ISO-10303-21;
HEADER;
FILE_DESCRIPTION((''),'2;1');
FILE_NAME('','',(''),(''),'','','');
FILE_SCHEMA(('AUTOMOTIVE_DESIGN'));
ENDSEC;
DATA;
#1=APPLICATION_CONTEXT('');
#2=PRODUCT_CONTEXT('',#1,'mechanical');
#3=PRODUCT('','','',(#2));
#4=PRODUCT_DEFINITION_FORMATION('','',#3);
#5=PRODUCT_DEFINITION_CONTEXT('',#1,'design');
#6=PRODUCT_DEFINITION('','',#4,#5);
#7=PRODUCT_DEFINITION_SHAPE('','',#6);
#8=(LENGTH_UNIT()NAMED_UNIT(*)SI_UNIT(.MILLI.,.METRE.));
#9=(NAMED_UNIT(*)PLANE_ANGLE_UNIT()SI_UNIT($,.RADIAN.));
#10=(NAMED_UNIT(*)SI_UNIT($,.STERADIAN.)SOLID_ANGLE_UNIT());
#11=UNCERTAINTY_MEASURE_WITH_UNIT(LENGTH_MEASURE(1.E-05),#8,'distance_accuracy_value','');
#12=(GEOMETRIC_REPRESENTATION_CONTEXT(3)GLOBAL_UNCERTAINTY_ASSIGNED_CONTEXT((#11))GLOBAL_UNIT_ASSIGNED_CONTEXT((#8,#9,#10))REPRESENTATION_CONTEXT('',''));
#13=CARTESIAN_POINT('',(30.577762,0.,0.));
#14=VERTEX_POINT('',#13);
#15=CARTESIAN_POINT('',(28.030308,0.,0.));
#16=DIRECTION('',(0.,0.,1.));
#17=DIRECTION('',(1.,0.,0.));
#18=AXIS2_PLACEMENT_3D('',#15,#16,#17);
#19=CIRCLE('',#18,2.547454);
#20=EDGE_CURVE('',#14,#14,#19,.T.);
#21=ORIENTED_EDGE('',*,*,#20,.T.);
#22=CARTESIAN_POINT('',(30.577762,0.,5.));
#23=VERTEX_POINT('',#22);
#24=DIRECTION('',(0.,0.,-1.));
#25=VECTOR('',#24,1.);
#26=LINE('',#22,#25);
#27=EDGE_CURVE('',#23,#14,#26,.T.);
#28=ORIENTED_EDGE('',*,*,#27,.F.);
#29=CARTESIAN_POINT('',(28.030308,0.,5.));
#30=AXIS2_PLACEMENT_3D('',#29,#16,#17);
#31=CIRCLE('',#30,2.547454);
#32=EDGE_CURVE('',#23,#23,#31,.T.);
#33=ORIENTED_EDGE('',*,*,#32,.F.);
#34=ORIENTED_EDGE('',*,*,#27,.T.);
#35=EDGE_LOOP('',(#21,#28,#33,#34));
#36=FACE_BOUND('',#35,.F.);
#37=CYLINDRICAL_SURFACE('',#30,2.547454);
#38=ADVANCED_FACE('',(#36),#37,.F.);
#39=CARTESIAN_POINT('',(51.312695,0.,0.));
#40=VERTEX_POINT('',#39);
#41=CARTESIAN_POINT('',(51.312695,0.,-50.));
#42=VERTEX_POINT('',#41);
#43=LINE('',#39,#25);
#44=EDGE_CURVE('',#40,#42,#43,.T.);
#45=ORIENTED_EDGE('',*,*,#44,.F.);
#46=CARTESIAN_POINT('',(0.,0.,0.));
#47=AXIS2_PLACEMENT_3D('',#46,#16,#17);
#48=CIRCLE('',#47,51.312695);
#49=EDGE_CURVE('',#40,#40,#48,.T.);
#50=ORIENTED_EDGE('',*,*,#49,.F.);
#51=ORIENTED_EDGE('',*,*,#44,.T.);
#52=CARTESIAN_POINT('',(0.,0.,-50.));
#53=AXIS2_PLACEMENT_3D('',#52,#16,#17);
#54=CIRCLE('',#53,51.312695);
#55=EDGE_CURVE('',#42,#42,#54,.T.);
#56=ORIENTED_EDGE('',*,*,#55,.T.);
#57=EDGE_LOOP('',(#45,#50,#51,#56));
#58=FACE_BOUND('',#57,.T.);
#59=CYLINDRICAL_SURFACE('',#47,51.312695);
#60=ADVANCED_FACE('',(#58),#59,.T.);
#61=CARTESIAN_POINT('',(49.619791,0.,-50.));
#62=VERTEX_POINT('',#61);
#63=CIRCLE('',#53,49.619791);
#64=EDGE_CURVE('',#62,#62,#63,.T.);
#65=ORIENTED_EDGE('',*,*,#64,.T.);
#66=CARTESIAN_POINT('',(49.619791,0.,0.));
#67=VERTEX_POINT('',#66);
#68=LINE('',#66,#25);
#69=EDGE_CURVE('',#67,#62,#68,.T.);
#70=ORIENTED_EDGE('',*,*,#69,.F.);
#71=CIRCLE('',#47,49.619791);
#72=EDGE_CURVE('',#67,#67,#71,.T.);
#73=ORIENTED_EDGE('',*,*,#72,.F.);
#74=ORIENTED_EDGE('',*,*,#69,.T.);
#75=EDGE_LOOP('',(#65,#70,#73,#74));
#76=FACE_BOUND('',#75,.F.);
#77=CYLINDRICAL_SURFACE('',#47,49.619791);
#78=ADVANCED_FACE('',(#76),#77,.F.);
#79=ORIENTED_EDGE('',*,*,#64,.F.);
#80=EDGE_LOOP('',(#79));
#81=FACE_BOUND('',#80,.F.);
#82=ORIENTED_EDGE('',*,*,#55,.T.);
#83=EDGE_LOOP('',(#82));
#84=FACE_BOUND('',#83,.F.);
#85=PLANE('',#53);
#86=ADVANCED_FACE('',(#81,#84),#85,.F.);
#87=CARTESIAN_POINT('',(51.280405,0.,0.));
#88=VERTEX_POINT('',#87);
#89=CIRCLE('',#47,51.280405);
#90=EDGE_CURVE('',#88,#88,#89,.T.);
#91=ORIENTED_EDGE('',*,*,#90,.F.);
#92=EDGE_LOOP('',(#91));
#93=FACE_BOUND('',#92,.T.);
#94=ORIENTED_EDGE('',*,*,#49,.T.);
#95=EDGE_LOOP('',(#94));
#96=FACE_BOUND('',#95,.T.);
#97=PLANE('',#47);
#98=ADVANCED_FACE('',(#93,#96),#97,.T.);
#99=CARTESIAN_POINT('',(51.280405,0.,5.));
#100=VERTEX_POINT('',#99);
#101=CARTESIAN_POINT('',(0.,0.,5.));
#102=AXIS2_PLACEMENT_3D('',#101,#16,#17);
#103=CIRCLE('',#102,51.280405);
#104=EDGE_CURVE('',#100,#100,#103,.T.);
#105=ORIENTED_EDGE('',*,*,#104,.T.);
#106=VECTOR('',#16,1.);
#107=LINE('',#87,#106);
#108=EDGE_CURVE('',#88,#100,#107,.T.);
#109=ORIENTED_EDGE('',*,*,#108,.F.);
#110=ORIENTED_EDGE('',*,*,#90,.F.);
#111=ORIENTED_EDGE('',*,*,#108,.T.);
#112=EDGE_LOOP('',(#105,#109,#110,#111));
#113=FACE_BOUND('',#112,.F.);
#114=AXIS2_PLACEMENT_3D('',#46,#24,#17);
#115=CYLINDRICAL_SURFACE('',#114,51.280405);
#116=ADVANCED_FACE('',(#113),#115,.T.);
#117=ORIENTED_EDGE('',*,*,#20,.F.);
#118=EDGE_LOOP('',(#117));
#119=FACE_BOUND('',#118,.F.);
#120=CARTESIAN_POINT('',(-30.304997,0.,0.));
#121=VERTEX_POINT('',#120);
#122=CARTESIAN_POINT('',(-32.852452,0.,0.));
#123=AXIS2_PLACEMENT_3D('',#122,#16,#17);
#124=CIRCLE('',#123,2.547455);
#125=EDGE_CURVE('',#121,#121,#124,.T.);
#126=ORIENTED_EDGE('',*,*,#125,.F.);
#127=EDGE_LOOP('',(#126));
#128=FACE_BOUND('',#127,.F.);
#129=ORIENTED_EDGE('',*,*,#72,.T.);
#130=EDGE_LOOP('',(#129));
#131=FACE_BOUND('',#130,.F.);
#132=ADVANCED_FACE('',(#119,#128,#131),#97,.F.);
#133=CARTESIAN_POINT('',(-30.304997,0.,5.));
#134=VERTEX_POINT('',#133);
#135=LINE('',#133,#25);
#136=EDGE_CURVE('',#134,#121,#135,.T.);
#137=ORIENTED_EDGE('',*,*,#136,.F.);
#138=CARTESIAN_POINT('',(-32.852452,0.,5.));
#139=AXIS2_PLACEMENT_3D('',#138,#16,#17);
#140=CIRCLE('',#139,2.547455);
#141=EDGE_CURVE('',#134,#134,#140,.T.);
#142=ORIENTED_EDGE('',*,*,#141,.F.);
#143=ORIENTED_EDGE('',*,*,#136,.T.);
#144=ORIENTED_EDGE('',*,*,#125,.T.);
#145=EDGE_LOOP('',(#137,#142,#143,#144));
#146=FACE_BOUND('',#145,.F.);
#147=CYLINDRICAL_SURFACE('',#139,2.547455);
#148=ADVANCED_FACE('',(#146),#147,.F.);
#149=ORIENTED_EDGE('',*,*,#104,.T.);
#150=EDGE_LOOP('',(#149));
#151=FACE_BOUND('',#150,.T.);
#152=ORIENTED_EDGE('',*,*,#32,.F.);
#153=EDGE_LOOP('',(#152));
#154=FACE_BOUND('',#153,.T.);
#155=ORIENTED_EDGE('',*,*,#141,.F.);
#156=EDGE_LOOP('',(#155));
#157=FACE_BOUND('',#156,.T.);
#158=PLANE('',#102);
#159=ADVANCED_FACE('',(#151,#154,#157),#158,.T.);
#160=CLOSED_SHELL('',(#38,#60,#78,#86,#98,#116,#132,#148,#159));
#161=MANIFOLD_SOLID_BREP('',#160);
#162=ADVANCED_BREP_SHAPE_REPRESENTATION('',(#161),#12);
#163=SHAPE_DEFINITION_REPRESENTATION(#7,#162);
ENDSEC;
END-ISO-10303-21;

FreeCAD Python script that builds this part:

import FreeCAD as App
import Part
import Sketcher
Q = App.Units.Quantity

doc = App.newDocument("Part")
body = doc.addObject("PartDesign::Body", "Body")

# Sketch on XY plane
sketch1 = body.newObject("Sketcher::SketchObject", "Sketch")
sketch1.AttachmentSupport = (doc.getObject("XY_Plane"), [""])
sketch1.MapMode = "FlatFace"
sketch1.addGeometry(Part.Circle(App.Vector(0, 0, 0), App.Vector(0, 0, 1), 51), False)
sketch1.addGeometry(Part.Circle(App.Vector(0, 0, 0), App.Vector(0, 0, 1), 50), False)
sketch1.addConstraint(Sketcher.Constraint("Coincident", 0, 3, -1, 1))
sketch1.addConstraint(Sketcher.Constraint("Coincident", 1, 3, -1, 1))
sketch1.addConstraint(Sketcher.Constraint("Diameter", 0, Q("102.62539 mm")))
sketch1.addConstraint(Sketcher.Constraint("Diameter", 1, Q("99.239582 mm")))
pad1 = body.newObject("PartDesign::Pad", "Pad")
pad1.Profile = sketch1
pad1.Length = 50
pad1.Reversed = True

# Sketch on XY plane
sketch2 = body.newObject("Sketcher::SketchObject", "Sketch001")
sketch2.AttachmentSupport = (doc.getObject("XY_Plane"), [""])
sketch2.MapMode = "FlatFace"
sketch2.addGeometry(Part.Circle(App.Vector(0, 0, 0), App.Vector(0, 0, 1), 51), False)
sketch2.addConstraint(Sketcher.Constraint("Coincident", 0, 3, -1, 1))
sketch2.addConstraint(Sketcher.Constraint("Diameter", 0, Q("102.56081 mm")))
pad2 = body.newObject("PartDesign::Pad", "Pad001")
pad2.Profile = sketch2
pad2.Length = 5

# Sketch on XY plane
sketch3 = body.newObject("Sketcher::SketchObject", "Sketch002")
sketch3.AttachmentSupport = (doc.getObject("XY_Plane"), [""])
sketch3.MapMode = "FlatFace"
sketch3.AttachmentOffset = App.Placement(App.Vector(0, 0, 5), App.Rotation())
sketch3.addGeometry(Part.Circle(App.Vector(0, 0, 0), App.Vector(0, 0, 1), 51), False)
sketch3.addConstraint(Sketcher.Constraint("Coincident", 0, 3, -1, 1))
sketch3.addConstraint(Sketcher.Constraint("Diameter", 0, Q("102.56081 mm")))
pad3 = body.newObject("PartDesign::Pad", "Pad002")
pad3.Profile = sketch3
pad3.Length = 5
pad3.Reversed = True

# Sketch on XY plane
sketch4 = body.newObject("Sketcher::SketchObject", "Sketch003")
sketch4.AttachmentSupport = (doc.getObject("XY_Plane"), [""])
sketch4.MapMode = "FlatFace"
sketch4.AttachmentOffset = App.Placement(App.Vector(0, 0, 5), App.Rotation())
sketch4.addGeometry(Part.Circle(App.Vector(-32.9, 0, 0), App.Vector(0, 0, 1), 2.5), False)
sketch4.addGeometry(Part.Circle(App.Vector(28, 0, 0), App.Vector(0, 0, 1), 2.5), False)
sketch4.addConstraint(Sketcher.Constraint("Equal", 0, 1))
sketch4.addConstraint(Sketcher.Constraint("PointOnObject", 0, 3, -1))
sketch4.addConstraint(Sketcher.Constraint("PointOnObject", 1, 3, -1))
sketch4.addConstraint(Sketcher.Constraint("Diameter", 0, Q("5.09491 mm")))
sketch4.addConstraint(Sketcher.Constraint("DistanceX", -1, 1, 1, 3, Q("28.030308 mm")))
sketch4.addConstraint(Sketcher.Constraint("DistanceX", 0, 3, 1, 3, Q("60.88276 mm")))
pocket1 = body.newObject("PartDesign::Pocket", "Pocket")
pocket1.Profile = sketch4
pocket1.Type = "ThroughAll"

doc.recompute()
